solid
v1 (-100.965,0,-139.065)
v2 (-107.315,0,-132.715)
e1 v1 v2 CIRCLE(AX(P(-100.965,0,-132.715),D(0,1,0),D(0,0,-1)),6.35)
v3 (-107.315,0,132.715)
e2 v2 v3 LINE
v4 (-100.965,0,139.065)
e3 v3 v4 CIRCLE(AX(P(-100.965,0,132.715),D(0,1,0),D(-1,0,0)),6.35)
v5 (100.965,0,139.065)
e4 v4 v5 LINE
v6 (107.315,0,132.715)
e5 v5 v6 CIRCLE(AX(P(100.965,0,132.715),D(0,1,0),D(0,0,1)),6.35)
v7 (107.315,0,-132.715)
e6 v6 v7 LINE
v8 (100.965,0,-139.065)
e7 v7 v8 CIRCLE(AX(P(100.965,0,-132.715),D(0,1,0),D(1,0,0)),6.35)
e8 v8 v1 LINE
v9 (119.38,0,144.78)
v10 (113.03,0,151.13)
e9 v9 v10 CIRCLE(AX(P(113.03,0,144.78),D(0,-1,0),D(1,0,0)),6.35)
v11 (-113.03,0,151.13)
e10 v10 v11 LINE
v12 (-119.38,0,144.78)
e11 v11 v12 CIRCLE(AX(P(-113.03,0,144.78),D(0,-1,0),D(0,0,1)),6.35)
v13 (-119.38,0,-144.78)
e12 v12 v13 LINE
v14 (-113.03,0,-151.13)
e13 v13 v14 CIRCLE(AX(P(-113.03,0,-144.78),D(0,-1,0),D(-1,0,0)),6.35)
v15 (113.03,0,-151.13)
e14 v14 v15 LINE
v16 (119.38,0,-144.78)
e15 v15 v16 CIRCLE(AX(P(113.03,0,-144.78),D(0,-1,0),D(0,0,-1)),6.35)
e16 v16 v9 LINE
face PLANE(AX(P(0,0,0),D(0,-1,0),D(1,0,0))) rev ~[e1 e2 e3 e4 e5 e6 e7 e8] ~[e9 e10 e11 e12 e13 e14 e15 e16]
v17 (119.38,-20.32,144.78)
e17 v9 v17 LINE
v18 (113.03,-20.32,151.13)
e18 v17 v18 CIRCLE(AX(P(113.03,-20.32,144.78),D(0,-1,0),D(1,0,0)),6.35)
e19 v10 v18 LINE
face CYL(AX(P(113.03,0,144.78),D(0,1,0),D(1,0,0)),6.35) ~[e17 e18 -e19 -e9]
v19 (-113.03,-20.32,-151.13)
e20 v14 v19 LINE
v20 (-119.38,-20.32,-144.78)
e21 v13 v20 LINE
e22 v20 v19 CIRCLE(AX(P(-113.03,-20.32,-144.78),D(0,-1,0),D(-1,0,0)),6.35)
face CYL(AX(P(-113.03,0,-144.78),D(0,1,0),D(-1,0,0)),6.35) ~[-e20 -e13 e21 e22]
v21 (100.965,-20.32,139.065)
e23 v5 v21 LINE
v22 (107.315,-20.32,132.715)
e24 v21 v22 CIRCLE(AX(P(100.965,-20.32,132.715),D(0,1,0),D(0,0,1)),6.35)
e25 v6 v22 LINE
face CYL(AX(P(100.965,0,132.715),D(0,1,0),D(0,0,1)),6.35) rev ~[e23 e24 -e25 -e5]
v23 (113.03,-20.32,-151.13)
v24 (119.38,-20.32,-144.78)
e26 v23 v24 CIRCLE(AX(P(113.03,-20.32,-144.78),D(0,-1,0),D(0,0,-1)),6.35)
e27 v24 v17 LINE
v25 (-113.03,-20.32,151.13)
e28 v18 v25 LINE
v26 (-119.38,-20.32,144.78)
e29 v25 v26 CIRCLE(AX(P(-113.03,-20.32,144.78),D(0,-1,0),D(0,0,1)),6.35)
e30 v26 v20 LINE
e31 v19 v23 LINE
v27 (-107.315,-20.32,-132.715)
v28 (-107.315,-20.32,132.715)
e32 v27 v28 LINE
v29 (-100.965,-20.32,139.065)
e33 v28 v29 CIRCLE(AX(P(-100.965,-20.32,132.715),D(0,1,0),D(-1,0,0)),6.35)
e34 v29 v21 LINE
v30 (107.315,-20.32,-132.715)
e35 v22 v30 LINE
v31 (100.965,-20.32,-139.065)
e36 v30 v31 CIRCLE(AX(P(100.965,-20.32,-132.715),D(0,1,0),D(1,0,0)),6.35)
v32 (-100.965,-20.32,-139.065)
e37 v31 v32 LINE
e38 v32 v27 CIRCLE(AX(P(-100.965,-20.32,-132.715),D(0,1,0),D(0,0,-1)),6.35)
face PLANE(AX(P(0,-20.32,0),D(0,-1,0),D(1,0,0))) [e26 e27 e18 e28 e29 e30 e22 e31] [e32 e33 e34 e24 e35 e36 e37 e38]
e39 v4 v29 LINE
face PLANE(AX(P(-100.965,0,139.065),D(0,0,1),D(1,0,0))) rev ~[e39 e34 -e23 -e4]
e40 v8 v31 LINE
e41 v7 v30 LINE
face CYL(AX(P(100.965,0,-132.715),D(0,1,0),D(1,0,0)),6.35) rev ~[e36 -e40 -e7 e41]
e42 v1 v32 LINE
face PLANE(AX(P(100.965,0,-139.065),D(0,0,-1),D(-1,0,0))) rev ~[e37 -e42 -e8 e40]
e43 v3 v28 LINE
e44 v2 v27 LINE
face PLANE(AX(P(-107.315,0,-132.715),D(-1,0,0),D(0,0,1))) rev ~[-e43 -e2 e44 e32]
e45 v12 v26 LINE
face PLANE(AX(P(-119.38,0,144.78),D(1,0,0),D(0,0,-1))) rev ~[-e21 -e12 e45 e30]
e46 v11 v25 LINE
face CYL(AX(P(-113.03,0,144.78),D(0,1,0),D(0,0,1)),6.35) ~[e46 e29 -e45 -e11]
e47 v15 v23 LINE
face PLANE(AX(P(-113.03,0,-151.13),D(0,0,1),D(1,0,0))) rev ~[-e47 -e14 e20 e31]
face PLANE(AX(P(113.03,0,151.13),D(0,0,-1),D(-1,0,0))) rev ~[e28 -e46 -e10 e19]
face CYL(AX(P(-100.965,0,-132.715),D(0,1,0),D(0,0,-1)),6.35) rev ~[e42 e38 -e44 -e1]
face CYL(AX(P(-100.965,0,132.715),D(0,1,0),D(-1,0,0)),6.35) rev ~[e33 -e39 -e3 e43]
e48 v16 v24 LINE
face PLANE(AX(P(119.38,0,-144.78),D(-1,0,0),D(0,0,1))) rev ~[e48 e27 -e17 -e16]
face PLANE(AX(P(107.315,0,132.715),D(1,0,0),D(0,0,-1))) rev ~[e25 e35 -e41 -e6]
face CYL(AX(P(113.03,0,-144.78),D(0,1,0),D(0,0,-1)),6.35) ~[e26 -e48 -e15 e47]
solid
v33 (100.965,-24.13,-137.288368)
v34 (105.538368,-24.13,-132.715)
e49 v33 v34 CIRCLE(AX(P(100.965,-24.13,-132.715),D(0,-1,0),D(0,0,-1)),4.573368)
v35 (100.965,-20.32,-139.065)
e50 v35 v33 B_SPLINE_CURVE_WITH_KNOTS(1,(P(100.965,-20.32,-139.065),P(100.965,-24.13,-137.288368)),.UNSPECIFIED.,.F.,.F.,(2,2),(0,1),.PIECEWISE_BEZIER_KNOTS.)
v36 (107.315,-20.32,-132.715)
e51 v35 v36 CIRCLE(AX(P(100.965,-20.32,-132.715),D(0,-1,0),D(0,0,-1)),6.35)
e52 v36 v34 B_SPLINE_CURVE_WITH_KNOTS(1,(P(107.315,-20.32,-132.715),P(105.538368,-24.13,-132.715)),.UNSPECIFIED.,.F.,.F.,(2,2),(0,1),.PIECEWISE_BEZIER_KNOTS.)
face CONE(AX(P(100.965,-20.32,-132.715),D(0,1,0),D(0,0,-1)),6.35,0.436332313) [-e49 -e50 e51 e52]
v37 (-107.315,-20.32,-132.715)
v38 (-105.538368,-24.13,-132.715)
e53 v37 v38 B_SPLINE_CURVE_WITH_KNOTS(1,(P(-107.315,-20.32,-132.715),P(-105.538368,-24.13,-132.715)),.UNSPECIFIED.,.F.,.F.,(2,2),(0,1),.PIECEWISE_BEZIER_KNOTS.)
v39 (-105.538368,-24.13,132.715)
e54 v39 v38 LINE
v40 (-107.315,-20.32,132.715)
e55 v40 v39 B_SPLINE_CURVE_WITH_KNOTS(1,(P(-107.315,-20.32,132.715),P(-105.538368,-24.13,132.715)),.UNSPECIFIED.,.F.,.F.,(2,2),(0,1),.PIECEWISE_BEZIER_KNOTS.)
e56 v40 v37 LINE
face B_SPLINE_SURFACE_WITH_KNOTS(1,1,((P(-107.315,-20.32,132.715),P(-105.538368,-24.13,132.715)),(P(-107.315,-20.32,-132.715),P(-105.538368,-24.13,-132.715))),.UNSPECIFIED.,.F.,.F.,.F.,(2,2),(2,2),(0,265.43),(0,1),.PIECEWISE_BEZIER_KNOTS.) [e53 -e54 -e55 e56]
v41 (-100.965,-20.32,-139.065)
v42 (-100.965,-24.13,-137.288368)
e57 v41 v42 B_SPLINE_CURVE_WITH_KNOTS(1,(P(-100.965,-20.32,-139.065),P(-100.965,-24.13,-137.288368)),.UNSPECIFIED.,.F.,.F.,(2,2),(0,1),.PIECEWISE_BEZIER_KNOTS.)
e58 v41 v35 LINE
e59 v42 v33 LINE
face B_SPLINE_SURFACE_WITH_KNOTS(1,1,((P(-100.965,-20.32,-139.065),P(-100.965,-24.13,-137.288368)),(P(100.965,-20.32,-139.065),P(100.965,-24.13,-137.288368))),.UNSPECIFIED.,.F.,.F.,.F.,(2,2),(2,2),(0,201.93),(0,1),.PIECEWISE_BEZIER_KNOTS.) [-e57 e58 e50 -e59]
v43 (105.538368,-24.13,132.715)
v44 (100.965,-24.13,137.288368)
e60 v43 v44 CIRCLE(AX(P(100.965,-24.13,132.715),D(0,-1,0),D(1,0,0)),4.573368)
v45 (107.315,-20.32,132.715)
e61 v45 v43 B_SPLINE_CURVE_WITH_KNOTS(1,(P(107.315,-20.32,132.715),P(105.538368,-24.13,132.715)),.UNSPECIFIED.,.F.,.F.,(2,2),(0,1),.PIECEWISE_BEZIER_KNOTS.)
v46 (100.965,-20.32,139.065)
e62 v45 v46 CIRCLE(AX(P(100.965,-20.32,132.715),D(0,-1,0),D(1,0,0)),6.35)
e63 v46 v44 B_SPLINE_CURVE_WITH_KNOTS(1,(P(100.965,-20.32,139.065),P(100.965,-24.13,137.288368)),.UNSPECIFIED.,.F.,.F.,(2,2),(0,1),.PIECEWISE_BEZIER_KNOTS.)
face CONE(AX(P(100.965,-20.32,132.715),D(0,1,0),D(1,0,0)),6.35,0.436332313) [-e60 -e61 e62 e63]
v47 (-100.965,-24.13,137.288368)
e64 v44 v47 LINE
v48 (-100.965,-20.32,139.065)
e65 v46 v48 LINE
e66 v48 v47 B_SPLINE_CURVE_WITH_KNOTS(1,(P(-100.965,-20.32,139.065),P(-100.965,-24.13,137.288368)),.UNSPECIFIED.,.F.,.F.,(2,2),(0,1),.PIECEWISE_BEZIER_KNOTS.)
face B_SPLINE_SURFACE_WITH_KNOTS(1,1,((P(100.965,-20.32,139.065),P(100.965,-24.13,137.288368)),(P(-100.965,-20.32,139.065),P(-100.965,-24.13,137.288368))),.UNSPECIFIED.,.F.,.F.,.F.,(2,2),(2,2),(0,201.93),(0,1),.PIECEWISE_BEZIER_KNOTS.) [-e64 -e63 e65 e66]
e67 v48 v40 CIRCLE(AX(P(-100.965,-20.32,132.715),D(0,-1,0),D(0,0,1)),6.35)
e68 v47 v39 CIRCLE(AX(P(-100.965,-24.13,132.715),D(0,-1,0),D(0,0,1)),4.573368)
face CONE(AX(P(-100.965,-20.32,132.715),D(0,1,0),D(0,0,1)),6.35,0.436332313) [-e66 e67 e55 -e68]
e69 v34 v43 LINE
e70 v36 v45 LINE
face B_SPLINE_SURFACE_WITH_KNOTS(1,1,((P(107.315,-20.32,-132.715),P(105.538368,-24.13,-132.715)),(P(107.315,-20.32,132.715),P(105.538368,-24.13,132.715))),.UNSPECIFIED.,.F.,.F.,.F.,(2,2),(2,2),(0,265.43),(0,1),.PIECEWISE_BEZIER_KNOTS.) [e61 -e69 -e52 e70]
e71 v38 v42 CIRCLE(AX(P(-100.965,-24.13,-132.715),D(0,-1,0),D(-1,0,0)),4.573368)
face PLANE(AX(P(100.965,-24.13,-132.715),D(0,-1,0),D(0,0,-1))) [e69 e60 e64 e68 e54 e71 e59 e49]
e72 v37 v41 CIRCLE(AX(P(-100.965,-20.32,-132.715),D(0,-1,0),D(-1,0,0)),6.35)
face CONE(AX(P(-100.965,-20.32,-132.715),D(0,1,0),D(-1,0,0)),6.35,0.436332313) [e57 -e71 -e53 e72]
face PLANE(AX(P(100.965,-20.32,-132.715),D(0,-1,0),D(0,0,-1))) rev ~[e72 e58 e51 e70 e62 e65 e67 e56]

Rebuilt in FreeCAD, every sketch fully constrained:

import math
import FreeCAD as App
import Part
import Sketcher
Q = App.Units.Quantity

doc = App.newDocument("Part")
body = doc.addObject("PartDesign::Body", "Body")

# Sketch on XZ plane
sketch1 = body.newObject("Sketcher::SketchObject", "Sketch")
sketch1.AttachmentSupport = (doc.getObject("XZ_Plane"), [""])
sketch1.MapMode = "FlatFace"
sketch1.addGeometry([
    Part.LineSegment(App.Vector(-113, -151, 0), App.Vector(113, -151, 0)),  # 0
    Part.ArcOfCircle(Part.Circle(App.Vector(113, -145, 0), App.Vector(0, 0, 1), 6), math.radians(-90), math.radians(0)),  # 1
    Part.LineSegment(App.Vector(119, -145, 0), App.Vector(119, 145, 0)),  # 2
    Part.ArcOfCircle(Part.Circle(App.Vector(113, 145, 0), App.Vector(0, 0, 1), 6), math.radians(0), math.radians(90)),  # 3
    Part.LineSegment(App.Vector(113, 151, 0), App.Vector(-113, 151, 0)),  # 4
    Part.ArcOfCircle(Part.Circle(App.Vector(-113, 145, 0), App.Vector(0, 0, 1), 6), math.radians(90), math.radians(180)),  # 5
    Part.LineSegment(App.Vector(-119, 145, 0), App.Vector(-119, -145, 0)),  # 6
    Part.ArcOfCircle(Part.Circle(App.Vector(-113, -145, 0), App.Vector(0, 0, 1), 6), math.radians(180), math.radians(270)),  # 7
    Part.LineSegment(App.Vector(107, 133, 0), App.Vector(107, -133, 0)),  # 8
    Part.ArcOfCircle(Part.Circle(App.Vector(101, -133, 0), App.Vector(0, 0, 1), 6), math.radians(-90), math.radians(0)),  # 9
    Part.LineSegment(App.Vector(101, -139, 0), App.Vector(-101, -139, 0)),  # 10
    Part.ArcOfCircle(Part.Circle(App.Vector(-101, -133, 0), App.Vector(0, 0, 1), 6), math.radians(180), math.radians(270)),  # 11
    Part.LineSegment(App.Vector(-107, -133, 0), App.Vector(-107, 133, 0)),  # 12
    Part.ArcOfCircle(Part.Circle(App.Vector(-101, 133, 0), App.Vector(0, 0, 1), 6), math.radians(90), math.radians(180)),  # 13
    Part.LineSegment(App.Vector(-101, 139, 0), App.Vector(101, 139, 0)),  # 14
    Part.ArcOfCircle(Part.Circle(App.Vector(101, 133, 0), App.Vector(0, 0, 1), 6), math.radians(0), math.radians(90)),  # 15
], False)
sketch1.addConstraint([
    Sketcher.Constraint("Tangent", 0, 2, 1, 1),
    Sketcher.Constraint("Tangent", 1, 2, 2, 1),
    Sketcher.Constraint("Tangent", 2, 2, 3, 1),
    Sketcher.Constraint("Tangent", 3, 2, 4, 1),
    Sketcher.Constraint("Tangent", 4, 2, 5, 1),
    Sketcher.Constraint("Tangent", 5, 2, 6, 1),
    Sketcher.Constraint("Tangent", 6, 2, 7, 1),
    Sketcher.Constraint("Tangent", 7, 2, 0, 1),
    Sketcher.Constraint("Tangent", 8, 2, 9, 2),
    Sketcher.Constraint("Tangent", 9, 1, 10, 1),
    Sketcher.Constraint("Tangent", 10, 2, 11, 2),
    Sketcher.Constraint("Tangent", 11, 1, 12, 1),
    Sketcher.Constraint("Tangent", 12, 2, 13, 2),
    Sketcher.Constraint("Tangent", 13, 1, 14, 1),
    Sketcher.Constraint("Tangent", 14, 2, 15, 2),
    Sketcher.Constraint("Tangent", 15, 1, 8, 1),
    Sketcher.Constraint("Horizontal", 0),
    Sketcher.Constraint("Vertical", 2),
    Sketcher.Constraint("Horizontal", 4),
    Sketcher.Constraint("Vertical", 6),
    Sketcher.Constraint("Vertical", 8),
    Sketcher.Constraint("Horizontal", 10),
    Sketcher.Constraint("Vertical", 12),
    Sketcher.Constraint("Horizontal", 14),
    Sketcher.Constraint("Equal", 1, 3),
    Sketcher.Constraint("Equal", 3, 5),
    Sketcher.Constraint("Equal", 5, 7),
    Sketcher.Constraint("Equal", 7, 9),
    Sketcher.Constraint("Equal", 9, 11),
    Sketcher.Constraint("Equal", 11, 13),
    Sketcher.Constraint("Equal", 13, 15),
    Sketcher.Constraint("Symmetric", 1, 3, 5, 3, -1, 1),
    Sketcher.Constraint("Symmetric", 9, 3, 13, 3, -1, 1),
    Sketcher.Constraint("Radius", 1, Q("0.25 in")),
    Sketcher.Constraint("DistanceX", 0, 1, 0, 2, Q("8.9 in")),
    Sketcher.Constraint("DistanceY", 2, 1, 2, 2, Q("11.4 in")),
    Sketcher.Constraint("DistanceX", 10, 2, 10, 1, Q("7.95 in")),
    Sketcher.Constraint("DistanceY", 8, 2, 8, 1, Q("10.45 in")),
])
pad1 = body.newObject("PartDesign::Pad", "Pad")
pad1.Profile = sketch1
pad1.Length = Q("0.8 in")
body2 = doc.addObject("PartDesign::Body", "Body001")

# Sketch on XZ plane
sketch2 = body2.newObject("Sketcher::SketchObject", "Sketch001")
sketch2.AttachmentSupport = (doc.getObject("XZ_Plane001"), [""])
sketch2.MapMode = "FlatFace"
sketch2.AttachmentOffset = App.Placement(App.Vector(0, 0, 0.8 * 25.4), App.Rotation())
sketch2.addGeometry([
    Part.LineSegment(App.Vector(-101, -139, 0), App.Vector(101, -139, 0)),  # 0
    Part.ArcOfCircle(Part.Circle(App.Vector(101, -133, 0), App.Vector(0, 0, 1), 6), math.radians(-90), math.radians(0)),  # 1
    Part.LineSegment(App.Vector(107, -133, 0), App.Vector(107, 133, 0)),  # 2
    Part.ArcOfCircle(Part.Circle(App.Vector(101, 133, 0), App.Vector(0, 0, 1), 6), math.radians(0), math.radians(90)),  # 3
    Part.LineSegment(App.Vector(101, 139, 0), App.Vector(-101, 139, 0)),  # 4
    Part.ArcOfCircle(Part.Circle(App.Vector(-101, 133, 0), App.Vector(0, 0, 1), 6), math.radians(90), math.radians(180)),  # 5
    Part.LineSegment(App.Vector(-107, 133, 0), App.Vector(-107, -133, 0)),  # 6
    Part.ArcOfCircle(Part.Circle(App.Vector(-101, -133, 0), App.Vector(0, 0, 1), 6), math.radians(180), math.radians(270)),  # 7
], False)
sketch2.addConstraint([
    Sketcher.Constraint("Tangent", 0, 2, 1, 1),
    Sketcher.Constraint("Tangent", 1, 2, 2, 1),
    Sketcher.Constraint("Tangent", 2, 2, 3, 1),
    Sketcher.Constraint("Tangent", 3, 2, 4, 1),
    Sketcher.Constraint("Tangent", 4, 2, 5, 1),
    Sketcher.Constraint("Tangent", 5, 2, 6, 1),
    Sketcher.Constraint("Tangent", 6, 2, 7, 1),
    Sketcher.Constraint("Tangent", 7, 2, 0, 1),
    Sketcher.Constraint("Horizontal", 0),
    Sketcher.Constraint("Vertical", 2),
    Sketcher.Constraint("Horizontal", 4),
    Sketcher.Constraint("Vertical", 6),
    Sketcher.Constraint("Equal", 1, 3),
    Sketcher.Constraint("Equal", 3, 5),
    Sketcher.Constraint("Equal", 5, 7),
    Sketcher.Constraint("Symmetric", 1, 3, 5, 3, -1, 1),
    Sketcher.Constraint("Radius", 1, Q("0.25 in")),
    Sketcher.Constraint("DistanceX", 0, 1, 0, 2, Q("7.95 in")),
    Sketcher.Constraint("DistanceY", 2, 1, 2, 2, Q("10.45 in")),
])
pad2 = body2.newObject("PartDesign::Pad", "Pad001")
pad2.Profile = sketch2
pad2.Length = Q("0.15 in")
pad2.TaperAngle = -25

doc.recompute()
